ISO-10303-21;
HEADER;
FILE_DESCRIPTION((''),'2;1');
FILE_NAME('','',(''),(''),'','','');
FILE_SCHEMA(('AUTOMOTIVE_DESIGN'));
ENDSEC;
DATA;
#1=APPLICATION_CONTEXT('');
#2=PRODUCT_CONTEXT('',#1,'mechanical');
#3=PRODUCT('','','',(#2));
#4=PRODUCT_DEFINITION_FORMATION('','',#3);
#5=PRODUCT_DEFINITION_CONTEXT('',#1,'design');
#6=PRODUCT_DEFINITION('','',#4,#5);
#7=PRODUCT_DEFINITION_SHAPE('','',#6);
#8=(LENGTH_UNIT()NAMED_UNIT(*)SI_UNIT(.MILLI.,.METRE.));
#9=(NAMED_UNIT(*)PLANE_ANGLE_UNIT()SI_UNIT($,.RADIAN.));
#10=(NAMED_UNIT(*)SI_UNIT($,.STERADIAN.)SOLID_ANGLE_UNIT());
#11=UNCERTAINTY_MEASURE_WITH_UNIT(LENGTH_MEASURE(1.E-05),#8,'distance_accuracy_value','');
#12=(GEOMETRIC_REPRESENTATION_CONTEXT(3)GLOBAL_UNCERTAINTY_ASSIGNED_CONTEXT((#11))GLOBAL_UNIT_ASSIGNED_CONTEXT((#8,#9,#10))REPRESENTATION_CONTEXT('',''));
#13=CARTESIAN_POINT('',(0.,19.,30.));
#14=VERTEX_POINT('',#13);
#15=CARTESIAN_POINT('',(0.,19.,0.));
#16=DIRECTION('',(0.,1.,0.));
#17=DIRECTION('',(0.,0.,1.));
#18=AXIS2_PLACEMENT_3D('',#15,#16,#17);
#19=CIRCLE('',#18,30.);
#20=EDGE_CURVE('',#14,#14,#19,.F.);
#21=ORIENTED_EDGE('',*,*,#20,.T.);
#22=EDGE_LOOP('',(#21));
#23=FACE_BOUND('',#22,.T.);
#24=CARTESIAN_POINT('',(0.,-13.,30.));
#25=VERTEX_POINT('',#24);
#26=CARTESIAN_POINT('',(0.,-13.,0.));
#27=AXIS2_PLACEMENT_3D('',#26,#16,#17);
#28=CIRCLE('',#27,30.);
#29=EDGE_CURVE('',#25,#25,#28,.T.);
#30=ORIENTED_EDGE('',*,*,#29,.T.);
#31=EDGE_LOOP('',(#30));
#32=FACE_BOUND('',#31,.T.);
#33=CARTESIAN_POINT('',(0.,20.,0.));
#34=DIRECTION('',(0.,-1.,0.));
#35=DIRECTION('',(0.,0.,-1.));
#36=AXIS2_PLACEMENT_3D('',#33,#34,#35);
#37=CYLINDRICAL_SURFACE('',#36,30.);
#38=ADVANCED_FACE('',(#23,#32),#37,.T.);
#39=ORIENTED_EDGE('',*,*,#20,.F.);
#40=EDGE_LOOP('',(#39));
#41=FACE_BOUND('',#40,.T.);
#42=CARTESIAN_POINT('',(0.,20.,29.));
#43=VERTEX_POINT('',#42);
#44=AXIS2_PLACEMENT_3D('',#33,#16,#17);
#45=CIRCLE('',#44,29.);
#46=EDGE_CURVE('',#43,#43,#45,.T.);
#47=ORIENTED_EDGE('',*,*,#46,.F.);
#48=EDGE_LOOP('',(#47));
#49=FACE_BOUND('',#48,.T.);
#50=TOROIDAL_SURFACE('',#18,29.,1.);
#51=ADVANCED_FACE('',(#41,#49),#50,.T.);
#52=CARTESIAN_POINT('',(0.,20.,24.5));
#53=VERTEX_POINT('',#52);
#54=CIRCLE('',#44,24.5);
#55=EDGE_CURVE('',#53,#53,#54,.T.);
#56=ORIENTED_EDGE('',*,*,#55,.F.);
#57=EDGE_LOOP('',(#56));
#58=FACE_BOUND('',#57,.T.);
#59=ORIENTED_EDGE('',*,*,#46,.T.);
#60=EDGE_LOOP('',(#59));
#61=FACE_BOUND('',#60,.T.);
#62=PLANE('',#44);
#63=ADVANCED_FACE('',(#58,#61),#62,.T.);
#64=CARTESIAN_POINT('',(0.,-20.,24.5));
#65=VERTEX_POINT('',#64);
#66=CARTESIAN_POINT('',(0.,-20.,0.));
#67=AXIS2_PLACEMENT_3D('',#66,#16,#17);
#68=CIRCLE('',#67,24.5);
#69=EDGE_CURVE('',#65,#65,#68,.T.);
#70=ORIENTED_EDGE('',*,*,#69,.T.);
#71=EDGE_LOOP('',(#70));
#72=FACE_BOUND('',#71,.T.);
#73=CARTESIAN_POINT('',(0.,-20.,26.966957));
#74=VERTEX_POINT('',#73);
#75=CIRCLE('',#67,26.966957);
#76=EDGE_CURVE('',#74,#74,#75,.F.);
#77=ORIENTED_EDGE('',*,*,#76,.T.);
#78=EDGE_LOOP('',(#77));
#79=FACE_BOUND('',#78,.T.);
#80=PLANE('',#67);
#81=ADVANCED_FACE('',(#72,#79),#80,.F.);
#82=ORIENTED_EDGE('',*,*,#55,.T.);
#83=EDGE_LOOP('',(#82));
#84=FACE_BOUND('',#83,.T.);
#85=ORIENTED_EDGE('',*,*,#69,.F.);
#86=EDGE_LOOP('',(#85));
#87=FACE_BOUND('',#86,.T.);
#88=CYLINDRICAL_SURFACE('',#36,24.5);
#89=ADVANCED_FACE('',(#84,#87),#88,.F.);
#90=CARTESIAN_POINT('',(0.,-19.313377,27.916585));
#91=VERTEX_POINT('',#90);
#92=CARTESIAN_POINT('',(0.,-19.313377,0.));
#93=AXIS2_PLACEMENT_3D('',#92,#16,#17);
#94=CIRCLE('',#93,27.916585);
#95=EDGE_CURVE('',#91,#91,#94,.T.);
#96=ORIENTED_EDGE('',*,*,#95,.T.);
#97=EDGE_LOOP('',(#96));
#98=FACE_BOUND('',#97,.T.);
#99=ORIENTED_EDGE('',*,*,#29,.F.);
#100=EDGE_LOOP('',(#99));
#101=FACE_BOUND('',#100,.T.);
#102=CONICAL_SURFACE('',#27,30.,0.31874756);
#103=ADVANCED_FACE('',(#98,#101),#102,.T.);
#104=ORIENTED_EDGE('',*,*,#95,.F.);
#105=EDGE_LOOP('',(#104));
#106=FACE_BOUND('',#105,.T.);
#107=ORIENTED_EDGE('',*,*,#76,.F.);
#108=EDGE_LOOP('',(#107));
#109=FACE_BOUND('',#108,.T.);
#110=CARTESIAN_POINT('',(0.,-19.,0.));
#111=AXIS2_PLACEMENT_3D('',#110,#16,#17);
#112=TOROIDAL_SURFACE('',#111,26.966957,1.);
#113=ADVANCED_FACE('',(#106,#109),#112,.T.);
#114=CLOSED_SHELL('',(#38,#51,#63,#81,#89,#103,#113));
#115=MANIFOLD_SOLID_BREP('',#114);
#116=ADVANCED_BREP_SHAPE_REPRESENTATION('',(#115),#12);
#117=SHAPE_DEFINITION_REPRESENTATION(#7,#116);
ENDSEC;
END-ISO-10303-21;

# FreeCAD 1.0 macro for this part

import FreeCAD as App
import Part
import Sketcher
from FreeCAD import Vector
Q = App.Units.Quantity


def edges_at(feature, points):
    """Names of the edges that pass closest to the given points."""
    edges = feature.Shape.Edges
    near = lambda p: min(range(len(edges)), key=lambda i: edges[i].distToShape(Part.Vertex(*p))[0])
    return sorted({f"Edge{near(p) + 1}" for p in points})

doc = App.newDocument("Part")
body = doc.addObject("PartDesign::Body", "Body")

sketch1 = body.newObject("Sketcher::SketchObject", "Sketch")
sketch1.AttachmentSupport = (doc.getObject("XZ_Plane"), [""])
sketch1.MapMode = "FlatFace"
sketch1.addGeometry([
    Part.Circle(Vector(0, 0, 0), Vector(0, 0, 1), 30),
    Part.Circle(Vector(0, 0, 0), Vector(0, 0, 1), 24),
], False)
sketch1.addConstraint([
    Sketcher.Constraint("Coincident", 0, 3, -1, 1),
    Sketcher.Constraint("Coincident", 1, 3, -1, 1),
    Sketcher.Constraint("Diameter", 0, Q("60 mm")),
    Sketcher.Constraint("Diameter", 1, Q("49 mm")),
])
pad1 = body.newObject("PartDesign::Pad", "Pad")
pad1.Profile = sketch1
pad1.Length = 40
pad1.Midplane = True
doc.recompute()

chamfer = body.newObject("PartDesign::Chamfer", "Chamfer")
chamfer.Base = (pad1, edges_at(pad1, [(0, -20, -30)]))
chamfer.ChamferType = "Two distances"
chamfer.Size = 2.31
chamfer.Size2 = 7
chamfer.FlipDirection = True
doc.recompute()

fillet = body.newObject("PartDesign::Fillet", "Fillet")
fillet.Base = (chamfer, edges_at(chamfer, [(0, -20, -27.69), (0, 20, -30)]))
fillet.Radius = 1

doc.recompute()
